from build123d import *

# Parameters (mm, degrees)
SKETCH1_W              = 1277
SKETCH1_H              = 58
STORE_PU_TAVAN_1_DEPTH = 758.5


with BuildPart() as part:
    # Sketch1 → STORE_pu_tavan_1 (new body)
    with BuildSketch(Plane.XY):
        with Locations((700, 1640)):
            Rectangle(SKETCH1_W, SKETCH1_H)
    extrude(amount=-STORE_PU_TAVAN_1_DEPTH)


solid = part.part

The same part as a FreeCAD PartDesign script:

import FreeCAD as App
import Part
import Sketcher
from FreeCAD import Vector
Q = App.Units.Quantity


def add_polygon(sketch, points):
    """Adds a closed chain of lines whose ends are joined by coincident constraints."""
    first, n = sketch.GeometryCount, len(points)
    for a, b in zip(points, points[1:] + points[:1]):
        sketch.addGeometry(Part.LineSegment(App.Vector(*a, 0), App.Vector(*b, 0)), False)
    for i in range(n):
        sketch.addConstraint(Sketcher.Constraint("Coincident", first + i, 2, first + (i + 1) % n, 1))

doc = App.newDocument("Part")
body = doc.addObject("PartDesign::Body", "Body")

sketch1 = doc.addObject("Sketcher::SketchObject", "Sketch")
body.addObject(sketch1)
sketch1.AttachmentSupport = (doc.XY_Plane, [""])
sketch1.MapMode = "FlatFace"
add_polygon(sketch1, [(61.5, 1669), (61.5, 1611), (1338.5, 1611), (1338.5, 1669)])
sketch1.addConstraint(Sketcher.Constraint("Vertical", 0))
sketch1.addConstraint(Sketcher.Constraint("Horizontal", 1))
sketch1.addConstraint(Sketcher.Constraint("Vertical", 2))
sketch1.addConstraint(Sketcher.Constraint("Horizontal", 3))
sketch1.addConstraint(Sketcher.Constraint("DistanceX", 1, 1, 1, 2, Q("1277 mm")))
sketch1.addConstraint(Sketcher.Constraint("DistanceY", 0, 2, 0, 1, Q("58 mm")))
sketch1.addConstraint(Sketcher.Constraint("DistanceY", -1, 1, 0, 2, Q("1611 mm")))
sketch1.addConstraint(Sketcher.Constraint("DistanceX", -1, 1, 0, 2, Q("61.5 mm")))
pad1 = doc.addObject("PartDesign::Pad", "Pad")
body.addObject(pad1)
pad1.Profile = sketch1
pad1.Length = 758.5
pad1.Reversed = True

doc.recompute()
